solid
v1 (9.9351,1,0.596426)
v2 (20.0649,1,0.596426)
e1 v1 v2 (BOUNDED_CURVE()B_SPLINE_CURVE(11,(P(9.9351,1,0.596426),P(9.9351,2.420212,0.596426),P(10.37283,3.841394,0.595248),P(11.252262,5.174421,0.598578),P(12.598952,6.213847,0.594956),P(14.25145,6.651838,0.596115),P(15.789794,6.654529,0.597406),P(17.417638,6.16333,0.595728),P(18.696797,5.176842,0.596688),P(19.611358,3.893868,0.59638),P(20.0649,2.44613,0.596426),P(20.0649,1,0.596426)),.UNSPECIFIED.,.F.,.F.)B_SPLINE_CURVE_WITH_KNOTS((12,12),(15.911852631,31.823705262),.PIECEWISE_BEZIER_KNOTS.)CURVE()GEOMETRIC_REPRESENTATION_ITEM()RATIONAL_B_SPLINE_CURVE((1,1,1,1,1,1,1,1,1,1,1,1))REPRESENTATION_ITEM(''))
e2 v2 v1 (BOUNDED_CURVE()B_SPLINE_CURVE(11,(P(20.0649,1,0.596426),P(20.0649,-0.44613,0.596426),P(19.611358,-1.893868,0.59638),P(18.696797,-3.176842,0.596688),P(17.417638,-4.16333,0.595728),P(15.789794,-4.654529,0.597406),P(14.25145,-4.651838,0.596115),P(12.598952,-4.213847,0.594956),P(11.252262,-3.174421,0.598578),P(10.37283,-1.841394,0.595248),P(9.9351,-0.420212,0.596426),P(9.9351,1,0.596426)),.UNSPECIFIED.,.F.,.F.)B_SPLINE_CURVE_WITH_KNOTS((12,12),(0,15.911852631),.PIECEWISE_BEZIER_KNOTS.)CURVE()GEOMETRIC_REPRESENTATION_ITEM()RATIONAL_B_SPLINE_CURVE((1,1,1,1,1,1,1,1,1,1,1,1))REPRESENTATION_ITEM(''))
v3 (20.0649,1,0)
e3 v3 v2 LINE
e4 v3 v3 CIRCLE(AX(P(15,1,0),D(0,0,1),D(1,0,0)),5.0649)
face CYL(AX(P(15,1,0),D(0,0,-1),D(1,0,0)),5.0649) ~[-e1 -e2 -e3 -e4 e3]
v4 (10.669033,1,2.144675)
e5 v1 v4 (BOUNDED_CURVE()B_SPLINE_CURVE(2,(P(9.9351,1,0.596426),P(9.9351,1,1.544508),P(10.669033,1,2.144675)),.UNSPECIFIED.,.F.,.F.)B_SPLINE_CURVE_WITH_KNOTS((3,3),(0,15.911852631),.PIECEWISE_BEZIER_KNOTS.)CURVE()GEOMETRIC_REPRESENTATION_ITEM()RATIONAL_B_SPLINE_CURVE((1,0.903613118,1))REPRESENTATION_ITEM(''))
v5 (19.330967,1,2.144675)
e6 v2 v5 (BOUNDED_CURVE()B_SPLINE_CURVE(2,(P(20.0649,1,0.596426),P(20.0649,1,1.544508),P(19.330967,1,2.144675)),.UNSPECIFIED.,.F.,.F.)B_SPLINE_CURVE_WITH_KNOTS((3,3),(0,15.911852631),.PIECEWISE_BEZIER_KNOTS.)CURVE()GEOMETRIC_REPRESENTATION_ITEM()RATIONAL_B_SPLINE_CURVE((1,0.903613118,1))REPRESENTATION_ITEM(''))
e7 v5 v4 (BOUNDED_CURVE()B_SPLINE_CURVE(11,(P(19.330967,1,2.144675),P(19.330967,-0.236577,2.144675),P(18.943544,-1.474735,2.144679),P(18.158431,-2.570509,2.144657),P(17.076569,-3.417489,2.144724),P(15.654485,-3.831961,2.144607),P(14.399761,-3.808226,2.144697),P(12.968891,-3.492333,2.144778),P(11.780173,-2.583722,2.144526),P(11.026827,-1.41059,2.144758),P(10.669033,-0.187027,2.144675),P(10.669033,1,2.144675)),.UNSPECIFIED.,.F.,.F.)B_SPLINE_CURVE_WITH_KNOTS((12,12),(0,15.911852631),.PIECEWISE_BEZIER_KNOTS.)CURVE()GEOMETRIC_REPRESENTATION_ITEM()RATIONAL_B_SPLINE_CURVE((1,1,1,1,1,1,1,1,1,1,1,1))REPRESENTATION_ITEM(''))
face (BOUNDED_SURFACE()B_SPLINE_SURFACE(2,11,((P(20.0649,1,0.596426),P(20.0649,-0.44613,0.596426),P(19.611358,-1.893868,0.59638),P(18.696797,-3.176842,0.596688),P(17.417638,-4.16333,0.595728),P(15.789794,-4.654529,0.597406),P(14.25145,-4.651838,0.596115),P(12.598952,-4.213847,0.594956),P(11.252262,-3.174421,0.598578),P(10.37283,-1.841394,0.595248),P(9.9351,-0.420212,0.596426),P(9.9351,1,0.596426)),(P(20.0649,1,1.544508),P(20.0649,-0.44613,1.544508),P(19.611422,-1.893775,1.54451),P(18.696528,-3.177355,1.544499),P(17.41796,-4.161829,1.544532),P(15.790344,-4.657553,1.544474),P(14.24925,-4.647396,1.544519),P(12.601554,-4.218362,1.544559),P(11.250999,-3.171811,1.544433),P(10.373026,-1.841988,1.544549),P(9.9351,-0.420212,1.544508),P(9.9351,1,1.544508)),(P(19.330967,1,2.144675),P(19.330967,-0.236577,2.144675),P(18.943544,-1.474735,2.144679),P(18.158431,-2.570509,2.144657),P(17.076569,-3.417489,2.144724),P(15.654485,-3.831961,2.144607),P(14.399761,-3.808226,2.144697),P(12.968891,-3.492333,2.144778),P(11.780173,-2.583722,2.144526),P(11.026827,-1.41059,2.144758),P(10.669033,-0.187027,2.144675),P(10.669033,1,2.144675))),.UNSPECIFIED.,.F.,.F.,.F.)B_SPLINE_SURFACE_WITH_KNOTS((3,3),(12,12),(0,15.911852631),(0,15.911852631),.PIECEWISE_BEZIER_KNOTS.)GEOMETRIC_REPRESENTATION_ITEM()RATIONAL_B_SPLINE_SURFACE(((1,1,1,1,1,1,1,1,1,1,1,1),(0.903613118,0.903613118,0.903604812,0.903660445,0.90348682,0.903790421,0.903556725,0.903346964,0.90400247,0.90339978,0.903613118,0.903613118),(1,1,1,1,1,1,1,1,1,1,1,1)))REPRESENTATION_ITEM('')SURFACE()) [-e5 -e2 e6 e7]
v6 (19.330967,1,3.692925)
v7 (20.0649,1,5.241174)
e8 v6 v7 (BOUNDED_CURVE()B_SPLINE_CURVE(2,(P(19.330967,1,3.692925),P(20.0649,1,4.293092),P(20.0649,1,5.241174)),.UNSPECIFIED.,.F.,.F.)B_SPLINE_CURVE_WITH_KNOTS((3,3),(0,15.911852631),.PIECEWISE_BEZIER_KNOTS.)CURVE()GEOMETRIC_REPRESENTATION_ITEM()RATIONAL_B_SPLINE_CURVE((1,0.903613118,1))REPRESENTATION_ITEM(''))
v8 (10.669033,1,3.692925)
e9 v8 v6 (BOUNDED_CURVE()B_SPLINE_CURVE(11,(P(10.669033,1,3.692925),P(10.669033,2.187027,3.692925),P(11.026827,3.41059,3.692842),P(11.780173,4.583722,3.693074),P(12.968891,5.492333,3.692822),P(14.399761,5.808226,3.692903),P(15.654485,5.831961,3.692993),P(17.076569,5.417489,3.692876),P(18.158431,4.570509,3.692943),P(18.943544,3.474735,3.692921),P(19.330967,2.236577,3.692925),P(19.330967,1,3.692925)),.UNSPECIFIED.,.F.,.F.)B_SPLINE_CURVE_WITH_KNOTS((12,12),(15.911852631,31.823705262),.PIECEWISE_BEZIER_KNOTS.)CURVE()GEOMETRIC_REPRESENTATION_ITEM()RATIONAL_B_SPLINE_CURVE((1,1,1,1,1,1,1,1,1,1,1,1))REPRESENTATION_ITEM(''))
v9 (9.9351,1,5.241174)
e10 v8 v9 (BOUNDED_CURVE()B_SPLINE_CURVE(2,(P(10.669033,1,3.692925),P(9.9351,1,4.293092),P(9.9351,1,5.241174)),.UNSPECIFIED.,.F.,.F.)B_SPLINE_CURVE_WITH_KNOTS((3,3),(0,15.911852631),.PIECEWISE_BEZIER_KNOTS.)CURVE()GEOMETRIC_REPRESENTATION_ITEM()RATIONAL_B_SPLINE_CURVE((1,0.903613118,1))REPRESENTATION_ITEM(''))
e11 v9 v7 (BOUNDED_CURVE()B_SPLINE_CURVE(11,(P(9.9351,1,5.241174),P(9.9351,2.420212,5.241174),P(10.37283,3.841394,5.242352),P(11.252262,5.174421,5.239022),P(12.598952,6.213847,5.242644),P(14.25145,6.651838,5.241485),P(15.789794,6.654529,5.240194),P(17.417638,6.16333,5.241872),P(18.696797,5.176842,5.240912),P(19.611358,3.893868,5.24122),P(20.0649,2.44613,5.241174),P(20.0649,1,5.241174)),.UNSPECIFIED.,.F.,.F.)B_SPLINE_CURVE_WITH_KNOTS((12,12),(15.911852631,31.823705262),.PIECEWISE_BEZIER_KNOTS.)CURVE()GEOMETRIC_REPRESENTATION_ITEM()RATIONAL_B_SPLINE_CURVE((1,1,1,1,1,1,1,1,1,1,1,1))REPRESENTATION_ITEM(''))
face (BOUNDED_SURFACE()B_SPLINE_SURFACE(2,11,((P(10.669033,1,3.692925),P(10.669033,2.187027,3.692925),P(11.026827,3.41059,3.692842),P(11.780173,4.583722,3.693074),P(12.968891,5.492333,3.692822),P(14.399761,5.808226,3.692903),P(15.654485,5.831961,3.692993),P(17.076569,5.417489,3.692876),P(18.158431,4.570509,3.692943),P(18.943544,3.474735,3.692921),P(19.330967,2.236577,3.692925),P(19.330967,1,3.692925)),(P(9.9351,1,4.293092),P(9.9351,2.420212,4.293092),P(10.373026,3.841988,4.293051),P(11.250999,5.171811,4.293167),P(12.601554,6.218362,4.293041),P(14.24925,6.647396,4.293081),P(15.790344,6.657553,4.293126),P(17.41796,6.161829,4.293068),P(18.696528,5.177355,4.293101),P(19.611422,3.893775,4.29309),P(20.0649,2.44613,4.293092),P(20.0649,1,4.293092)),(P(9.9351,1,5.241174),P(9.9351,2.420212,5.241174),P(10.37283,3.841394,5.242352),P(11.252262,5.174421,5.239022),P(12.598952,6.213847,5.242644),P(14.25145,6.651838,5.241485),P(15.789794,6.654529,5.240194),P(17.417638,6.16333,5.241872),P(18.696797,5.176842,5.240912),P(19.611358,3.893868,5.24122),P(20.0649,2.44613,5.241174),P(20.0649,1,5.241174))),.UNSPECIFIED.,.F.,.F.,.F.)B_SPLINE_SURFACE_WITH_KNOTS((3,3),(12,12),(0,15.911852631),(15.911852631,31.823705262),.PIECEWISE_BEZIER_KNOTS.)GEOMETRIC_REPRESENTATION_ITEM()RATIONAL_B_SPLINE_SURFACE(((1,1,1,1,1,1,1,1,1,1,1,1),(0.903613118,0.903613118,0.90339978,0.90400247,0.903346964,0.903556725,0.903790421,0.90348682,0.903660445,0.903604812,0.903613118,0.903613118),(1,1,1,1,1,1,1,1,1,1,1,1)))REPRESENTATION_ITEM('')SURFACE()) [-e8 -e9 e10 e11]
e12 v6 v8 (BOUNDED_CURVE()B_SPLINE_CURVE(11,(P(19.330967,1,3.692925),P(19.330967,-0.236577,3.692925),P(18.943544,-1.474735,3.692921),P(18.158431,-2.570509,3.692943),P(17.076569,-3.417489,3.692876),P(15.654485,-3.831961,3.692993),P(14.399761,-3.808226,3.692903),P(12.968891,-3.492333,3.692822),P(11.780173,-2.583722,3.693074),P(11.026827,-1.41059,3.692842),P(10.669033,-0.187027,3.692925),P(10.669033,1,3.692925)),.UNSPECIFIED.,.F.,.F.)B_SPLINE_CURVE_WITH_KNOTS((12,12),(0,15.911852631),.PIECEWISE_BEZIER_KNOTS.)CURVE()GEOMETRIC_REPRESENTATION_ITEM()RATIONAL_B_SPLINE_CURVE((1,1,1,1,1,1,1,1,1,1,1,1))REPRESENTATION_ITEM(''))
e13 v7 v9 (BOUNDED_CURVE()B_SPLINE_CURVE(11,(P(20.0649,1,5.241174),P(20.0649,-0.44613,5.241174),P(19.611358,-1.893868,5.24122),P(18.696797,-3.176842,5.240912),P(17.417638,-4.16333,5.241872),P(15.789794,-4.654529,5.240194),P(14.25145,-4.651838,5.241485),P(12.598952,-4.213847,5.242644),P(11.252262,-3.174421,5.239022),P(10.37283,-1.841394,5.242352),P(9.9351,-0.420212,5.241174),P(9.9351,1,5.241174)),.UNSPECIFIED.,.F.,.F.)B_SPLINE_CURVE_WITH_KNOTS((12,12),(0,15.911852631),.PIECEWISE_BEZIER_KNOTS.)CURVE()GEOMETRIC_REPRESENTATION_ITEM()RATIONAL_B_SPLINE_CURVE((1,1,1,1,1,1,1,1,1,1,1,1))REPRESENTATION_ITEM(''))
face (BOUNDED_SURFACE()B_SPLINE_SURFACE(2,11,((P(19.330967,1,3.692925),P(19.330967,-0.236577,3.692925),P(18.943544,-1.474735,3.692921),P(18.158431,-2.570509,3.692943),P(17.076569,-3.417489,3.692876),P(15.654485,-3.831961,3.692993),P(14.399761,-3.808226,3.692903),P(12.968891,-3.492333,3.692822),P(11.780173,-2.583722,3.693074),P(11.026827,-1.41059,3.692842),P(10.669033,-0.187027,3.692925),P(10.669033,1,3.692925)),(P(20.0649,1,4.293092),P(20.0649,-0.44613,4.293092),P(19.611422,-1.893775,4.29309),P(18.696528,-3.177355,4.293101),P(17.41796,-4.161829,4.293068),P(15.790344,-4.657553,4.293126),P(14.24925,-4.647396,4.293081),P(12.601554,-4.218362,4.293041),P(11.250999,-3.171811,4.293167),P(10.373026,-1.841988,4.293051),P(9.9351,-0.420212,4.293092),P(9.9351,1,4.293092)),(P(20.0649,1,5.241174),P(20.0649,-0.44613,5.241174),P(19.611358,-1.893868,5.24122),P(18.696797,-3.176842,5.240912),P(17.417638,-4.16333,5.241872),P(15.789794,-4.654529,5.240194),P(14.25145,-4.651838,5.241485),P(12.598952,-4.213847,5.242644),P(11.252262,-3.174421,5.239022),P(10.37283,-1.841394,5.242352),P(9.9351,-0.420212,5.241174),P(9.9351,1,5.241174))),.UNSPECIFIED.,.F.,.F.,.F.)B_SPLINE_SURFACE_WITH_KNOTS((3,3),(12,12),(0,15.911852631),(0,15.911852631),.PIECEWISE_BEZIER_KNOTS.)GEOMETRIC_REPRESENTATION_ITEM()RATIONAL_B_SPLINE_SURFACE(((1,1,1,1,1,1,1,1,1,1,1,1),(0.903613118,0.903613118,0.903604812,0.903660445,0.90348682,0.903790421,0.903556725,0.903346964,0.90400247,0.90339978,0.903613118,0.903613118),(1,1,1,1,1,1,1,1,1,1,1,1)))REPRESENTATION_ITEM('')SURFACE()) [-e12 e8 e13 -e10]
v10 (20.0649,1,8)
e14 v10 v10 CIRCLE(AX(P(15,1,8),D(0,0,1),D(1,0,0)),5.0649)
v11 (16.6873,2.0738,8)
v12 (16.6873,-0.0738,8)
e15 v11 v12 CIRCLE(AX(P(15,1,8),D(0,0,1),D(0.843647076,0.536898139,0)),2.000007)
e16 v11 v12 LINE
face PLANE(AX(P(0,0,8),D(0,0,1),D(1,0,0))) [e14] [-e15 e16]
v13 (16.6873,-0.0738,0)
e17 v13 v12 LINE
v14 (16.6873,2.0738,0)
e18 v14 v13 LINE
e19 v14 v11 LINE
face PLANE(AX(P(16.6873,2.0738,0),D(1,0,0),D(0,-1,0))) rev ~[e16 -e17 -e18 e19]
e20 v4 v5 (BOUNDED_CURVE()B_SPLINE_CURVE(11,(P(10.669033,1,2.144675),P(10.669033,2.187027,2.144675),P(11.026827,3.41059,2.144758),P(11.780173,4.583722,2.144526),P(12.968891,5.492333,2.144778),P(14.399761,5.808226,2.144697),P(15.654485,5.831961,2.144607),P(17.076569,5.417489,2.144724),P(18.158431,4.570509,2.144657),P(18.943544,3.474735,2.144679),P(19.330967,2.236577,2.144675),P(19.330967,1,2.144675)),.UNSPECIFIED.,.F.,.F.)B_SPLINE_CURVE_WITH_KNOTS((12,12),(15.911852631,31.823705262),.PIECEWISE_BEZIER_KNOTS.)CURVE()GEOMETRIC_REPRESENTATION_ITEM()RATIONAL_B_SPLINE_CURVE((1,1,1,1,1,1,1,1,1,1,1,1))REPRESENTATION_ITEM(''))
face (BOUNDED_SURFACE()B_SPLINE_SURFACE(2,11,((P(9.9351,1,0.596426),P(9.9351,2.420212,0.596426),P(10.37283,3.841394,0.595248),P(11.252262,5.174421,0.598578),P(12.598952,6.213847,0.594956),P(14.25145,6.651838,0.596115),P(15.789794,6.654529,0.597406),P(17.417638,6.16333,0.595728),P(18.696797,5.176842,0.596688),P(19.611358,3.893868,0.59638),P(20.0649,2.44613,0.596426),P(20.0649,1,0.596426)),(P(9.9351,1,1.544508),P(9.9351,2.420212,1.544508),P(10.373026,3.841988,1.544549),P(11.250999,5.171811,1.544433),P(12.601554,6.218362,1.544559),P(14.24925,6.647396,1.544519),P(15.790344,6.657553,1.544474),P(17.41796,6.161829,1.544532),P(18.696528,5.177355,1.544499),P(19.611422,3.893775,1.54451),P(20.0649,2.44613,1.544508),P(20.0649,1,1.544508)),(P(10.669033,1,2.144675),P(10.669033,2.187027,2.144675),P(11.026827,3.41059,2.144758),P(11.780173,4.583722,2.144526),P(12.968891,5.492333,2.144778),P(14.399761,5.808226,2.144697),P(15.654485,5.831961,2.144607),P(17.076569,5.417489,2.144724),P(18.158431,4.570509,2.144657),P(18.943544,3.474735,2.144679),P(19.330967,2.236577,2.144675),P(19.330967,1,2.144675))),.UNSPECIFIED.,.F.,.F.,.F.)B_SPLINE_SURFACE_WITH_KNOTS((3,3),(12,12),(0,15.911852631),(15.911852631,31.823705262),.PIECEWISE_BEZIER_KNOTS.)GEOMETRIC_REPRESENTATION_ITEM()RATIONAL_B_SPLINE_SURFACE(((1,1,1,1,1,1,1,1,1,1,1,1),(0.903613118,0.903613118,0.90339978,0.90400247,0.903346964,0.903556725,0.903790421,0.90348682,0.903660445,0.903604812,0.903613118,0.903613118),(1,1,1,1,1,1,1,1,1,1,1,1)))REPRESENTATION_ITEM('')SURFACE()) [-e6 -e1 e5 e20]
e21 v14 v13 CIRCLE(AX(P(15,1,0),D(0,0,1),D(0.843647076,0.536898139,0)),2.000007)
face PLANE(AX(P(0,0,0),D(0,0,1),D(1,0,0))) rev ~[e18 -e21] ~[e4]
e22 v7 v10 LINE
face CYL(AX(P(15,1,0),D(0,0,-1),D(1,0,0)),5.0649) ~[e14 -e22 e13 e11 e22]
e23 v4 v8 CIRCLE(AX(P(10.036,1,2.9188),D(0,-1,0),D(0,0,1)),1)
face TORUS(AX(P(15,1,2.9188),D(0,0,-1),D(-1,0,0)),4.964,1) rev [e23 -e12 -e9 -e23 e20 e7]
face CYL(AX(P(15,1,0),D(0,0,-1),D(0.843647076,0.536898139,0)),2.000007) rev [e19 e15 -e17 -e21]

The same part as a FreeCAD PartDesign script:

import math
import FreeCAD as App
import Part
import Sketcher


def edges_at(feature, points):
    """Names of the edges that pass closest to the given points."""
    edges = feature.Shape.Edges
    near = lambda p: min(range(len(edges)), key=lambda i: edges[i].distToShape(Part.Vertex(*p))[0])
    return sorted({f"Edge{near(p) + 1}" for p in points})

doc = App.newDocument("Part")
body = doc.addObject("PartDesign::Body", "Body")

# Sketch on XY plane
sketch1 = body.newObject("Sketcher::SketchObject", "Sketch")
sketch1.AttachmentSupport = (doc.getObject("XY_Plane"), [""])
sketch1.MapMode = "FlatFace"
sketch1.addGeometry(Part.Circle(App.Vector(15, 1, 0), App.Vector(0, 0, 1), 5.1), False)
sketch1.addGeometry(Part.ArcOfCircle(Part.Circle(App.Vector(15, 1, 0), App.Vector(0, 0, 1), 2), math.radians(32), math.radians(328)), False)
sketch1.addGeometry(Part.LineSegment(App.Vector(16.7, 2.1, 0), App.Vector(16.7, -0.1, 0)), False)
sketch1.addConstraint(Sketcher.Constraint("Coincident", 1, 1, 2, 1))
sketch1.addConstraint(Sketcher.Constraint("Coincident", 2, 2, 1, 2))
sketch1.addConstraint(Sketcher.Constraint("Vertical", 2))
sketch1.addConstraint(Sketcher.Constraint("Coincident", 1, 3, 0, 3))
sketch1.addConstraint(Sketcher.Constraint("Radius", 1, 2.0))
sketch1.addConstraint(Sketcher.Constraint("DistanceX", -1, 1, 0, 3, 15.0))
sketch1.addConstraint(Sketcher.Constraint("DistanceY", -1, 1, 0, 3, 1.0))
sketch1.addConstraint(Sketcher.Constraint("Diameter", 0, 10.1298))
sketch1.addConstraint(Sketcher.Constraint("DistanceY", 2, 2, 2, 1, 2.1476))
pad1 = body.newObject("PartDesign::Pad", "Pad")
pad1.Profile = sketch1
pad1.Length = 8

# Sketch on XZ plane
sketch2 = body.newObject("Sketcher::SketchObject", "Sketch001")
sketch2.AttachmentSupport = (doc.getObject("XZ_Plane"), [""])
sketch2.MapMode = "FlatFace"
sketch2.AttachmentOffset = App.Placement(App.Vector(0, 0, -1), App.Rotation())
sketch2.addGeometry(Part.Circle(App.Vector(10, 2.9, 0), App.Vector(0, 0, 1), 1), False)
sketch2.addGeometry(Part.LineSegment(App.Vector(15, 2.9, 0), App.Vector(15, 12.9, 0)), True)  # axis
sketch2.addConstraint(Sketcher.Constraint("Vertical", 1))
sketch2.addConstraint(Sketcher.Constraint("Horizontal", 0, 3, 1, 1))
sketch2.addConstraint(Sketcher.Constraint("Diameter", 0, 2.0))
sketch2.addConstraint(Sketcher.Constraint("DistanceY", 1, 1, 1, 2, 10.0))
sketch2.addConstraint(Sketcher.Constraint("DistanceX", -1, 1, 1, 1, 15.0))
sketch2.addConstraint(Sketcher.Constraint("DistanceX", -1, 1, 0, 3, 10.036))
sketch2.addConstraint(Sketcher.Constraint("DistanceY", -1, 1, 0, 3, 2.9188))
groove = body.newObject("PartDesign::Groove", "Groove")
groove.Profile = sketch2
groove.ReferenceAxis = (sketch2, ["Axis0"])
groove.Angle = 360
doc.recompute()

fillet = body.newObject("PartDesign::Fillet", "Fillet")
fillet.Base = (groove, edges_at(groove, [
    (15, -4.065, 1.924),
    (15, 6.065, 1.924),
    (15, -4.065, 3.914),
    (15, 6.065, 3.914),
]))
fillet.Radius = 2

doc.recompute()
